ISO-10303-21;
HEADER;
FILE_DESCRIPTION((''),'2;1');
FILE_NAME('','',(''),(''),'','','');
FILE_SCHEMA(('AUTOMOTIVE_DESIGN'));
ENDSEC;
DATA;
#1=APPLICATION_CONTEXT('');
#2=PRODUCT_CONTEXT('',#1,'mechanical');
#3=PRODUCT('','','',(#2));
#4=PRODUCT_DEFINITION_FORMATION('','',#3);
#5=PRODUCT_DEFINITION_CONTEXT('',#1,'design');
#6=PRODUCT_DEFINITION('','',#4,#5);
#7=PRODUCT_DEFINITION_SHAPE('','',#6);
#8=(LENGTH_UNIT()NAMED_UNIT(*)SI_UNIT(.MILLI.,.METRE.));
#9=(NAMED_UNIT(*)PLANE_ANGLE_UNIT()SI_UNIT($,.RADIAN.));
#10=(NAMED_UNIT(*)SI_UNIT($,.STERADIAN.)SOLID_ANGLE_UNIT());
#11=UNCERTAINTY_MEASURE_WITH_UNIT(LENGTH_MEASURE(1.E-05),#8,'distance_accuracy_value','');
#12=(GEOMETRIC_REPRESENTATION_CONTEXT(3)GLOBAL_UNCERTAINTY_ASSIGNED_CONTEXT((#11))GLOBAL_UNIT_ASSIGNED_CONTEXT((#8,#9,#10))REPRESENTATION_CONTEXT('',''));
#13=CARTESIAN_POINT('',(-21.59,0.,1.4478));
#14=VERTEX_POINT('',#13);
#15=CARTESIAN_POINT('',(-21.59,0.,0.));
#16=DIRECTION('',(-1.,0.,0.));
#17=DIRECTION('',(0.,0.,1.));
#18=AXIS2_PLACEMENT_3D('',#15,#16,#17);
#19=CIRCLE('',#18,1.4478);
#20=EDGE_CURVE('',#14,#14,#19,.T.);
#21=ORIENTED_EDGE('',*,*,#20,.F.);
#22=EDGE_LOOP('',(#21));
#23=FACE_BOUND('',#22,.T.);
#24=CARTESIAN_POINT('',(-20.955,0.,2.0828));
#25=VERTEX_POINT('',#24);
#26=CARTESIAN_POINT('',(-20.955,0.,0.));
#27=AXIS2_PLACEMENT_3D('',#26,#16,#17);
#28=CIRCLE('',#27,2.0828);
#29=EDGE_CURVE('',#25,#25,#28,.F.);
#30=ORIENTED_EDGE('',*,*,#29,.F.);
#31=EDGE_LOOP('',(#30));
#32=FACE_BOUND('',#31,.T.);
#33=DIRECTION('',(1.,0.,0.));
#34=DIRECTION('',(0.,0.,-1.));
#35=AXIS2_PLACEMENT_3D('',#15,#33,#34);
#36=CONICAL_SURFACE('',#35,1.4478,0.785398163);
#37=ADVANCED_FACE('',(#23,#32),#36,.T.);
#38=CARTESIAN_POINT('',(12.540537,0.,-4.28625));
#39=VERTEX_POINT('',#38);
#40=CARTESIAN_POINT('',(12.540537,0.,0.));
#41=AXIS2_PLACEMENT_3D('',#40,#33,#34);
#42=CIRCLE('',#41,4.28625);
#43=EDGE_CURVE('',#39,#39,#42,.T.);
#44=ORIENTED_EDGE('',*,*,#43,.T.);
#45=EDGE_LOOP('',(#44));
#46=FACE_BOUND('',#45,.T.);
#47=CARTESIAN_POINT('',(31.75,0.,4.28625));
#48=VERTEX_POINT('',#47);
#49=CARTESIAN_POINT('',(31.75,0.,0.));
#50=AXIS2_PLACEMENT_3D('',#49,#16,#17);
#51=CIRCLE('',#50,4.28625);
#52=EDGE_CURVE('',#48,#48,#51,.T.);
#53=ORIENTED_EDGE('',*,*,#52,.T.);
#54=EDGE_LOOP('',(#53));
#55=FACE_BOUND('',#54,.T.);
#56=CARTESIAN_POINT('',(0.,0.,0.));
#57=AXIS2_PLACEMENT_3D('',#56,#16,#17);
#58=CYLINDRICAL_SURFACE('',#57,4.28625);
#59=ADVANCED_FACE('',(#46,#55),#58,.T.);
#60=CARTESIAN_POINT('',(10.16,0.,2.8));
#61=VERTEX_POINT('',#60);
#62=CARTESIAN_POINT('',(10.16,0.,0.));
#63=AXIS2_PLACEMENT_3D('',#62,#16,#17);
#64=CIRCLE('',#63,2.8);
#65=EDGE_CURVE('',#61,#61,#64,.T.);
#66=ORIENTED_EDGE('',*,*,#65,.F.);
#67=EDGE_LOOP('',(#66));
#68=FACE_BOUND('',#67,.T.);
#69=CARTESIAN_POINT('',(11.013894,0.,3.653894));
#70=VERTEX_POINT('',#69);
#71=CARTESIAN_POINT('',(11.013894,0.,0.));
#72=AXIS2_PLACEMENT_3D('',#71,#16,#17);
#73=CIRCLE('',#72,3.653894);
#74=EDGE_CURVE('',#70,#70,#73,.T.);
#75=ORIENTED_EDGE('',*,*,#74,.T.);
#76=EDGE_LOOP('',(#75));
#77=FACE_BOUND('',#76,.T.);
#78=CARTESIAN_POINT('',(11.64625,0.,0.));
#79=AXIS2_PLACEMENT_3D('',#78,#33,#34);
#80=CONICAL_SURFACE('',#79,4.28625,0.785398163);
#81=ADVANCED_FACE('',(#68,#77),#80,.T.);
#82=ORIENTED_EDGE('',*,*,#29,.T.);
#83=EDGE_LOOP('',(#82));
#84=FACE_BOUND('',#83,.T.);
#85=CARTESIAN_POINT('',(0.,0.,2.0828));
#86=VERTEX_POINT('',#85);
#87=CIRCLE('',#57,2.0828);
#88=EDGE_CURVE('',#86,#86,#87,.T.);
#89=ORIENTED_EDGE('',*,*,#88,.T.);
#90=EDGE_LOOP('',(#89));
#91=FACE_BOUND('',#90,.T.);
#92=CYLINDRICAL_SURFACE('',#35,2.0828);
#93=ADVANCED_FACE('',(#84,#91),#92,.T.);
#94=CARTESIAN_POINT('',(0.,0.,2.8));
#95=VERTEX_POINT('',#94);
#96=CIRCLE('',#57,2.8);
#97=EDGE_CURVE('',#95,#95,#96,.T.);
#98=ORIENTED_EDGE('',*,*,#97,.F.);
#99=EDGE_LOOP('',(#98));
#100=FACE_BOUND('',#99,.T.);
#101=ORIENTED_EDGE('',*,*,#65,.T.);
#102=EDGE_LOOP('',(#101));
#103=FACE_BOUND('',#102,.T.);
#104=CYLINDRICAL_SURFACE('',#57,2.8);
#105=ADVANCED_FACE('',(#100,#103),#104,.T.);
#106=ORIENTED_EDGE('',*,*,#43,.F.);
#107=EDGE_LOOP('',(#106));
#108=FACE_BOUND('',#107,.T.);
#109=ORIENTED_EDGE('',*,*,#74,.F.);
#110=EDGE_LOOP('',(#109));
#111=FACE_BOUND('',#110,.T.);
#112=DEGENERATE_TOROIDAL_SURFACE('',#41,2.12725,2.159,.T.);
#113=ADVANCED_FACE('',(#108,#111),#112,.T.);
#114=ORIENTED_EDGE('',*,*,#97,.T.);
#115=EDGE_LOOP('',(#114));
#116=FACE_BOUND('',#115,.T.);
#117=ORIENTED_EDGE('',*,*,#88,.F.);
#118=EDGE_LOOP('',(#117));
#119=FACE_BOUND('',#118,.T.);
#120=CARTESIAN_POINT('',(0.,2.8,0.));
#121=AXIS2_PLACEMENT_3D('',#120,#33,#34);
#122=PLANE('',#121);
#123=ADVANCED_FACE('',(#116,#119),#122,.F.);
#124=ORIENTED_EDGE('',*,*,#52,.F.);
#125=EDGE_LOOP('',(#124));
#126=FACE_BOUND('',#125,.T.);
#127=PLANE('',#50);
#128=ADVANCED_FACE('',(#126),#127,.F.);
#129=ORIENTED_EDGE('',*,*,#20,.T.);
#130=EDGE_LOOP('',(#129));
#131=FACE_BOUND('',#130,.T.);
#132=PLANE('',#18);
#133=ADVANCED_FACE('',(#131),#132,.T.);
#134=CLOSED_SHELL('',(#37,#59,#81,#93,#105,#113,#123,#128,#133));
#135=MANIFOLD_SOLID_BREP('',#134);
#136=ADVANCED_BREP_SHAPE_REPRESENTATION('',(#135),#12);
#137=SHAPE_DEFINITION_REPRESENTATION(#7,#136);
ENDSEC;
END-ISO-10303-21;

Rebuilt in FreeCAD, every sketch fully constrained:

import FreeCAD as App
import Part
import Sketcher
Q = App.Units.Quantity


def edges_at(feature, points):
    """Names of the edges that pass closest to the given points."""
    edges = feature.Shape.Edges
    near = lambda p: min(range(len(edges)), key=lambda i: edges[i].distToShape(Part.Vertex(*p))[0])
    return sorted({f"Edge{near(p) + 1}" for p in points})


def add_polygon(sketch, points):
    """Adds a closed chain of lines whose ends are joined by coincident constraints."""
    first, n = sketch.GeometryCount, len(points)
    for a, b in zip(points, points[1:] + points[:1]):
        sketch.addGeometry(Part.LineSegment(App.Vector(*a, 0), App.Vector(*b, 0)), False)
    for i in range(n):
        sketch.addConstraint(Sketcher.Constraint("Coincident", first + i, 2, first + (i + 1) % n, 1))

doc = App.newDocument("Part")
body = doc.addObject("PartDesign::Body", "Body")

# Sketch on XY plane
sketch1 = body.newObject("Sketcher::SketchObject", "Sketch")
sketch1.AttachmentSupport = (doc.getObject("XY_Plane"), [""])
sketch1.MapMode = "FlatFace"
add_polygon(sketch1, [(31.8, 0), (31.8, 4.3), (11.6, 4.3), (10.2, 2.8), (0, 2.8), (0, 0)])  # lines 0-5
sketch1.addConstraint([
    Sketcher.Constraint("Vertical", 0),
    Sketcher.Constraint("Horizontal", 1),
    Sketcher.Constraint("Horizontal", 3),
    Sketcher.Constraint("Vertical", 4),
    Sketcher.Constraint("Horizontal", 5),
    Sketcher.Constraint("Coincident", 4, 2, -1, 1),
    Sketcher.Constraint("DistanceX", 3, 2, 3, 1, Q("0.4 in")),
    Sketcher.Constraint("Angle", 2, Q("-135 deg")),
    Sketcher.Constraint("DistanceX", 5, 1, 5, 2, Q("1.25 in")),
    Sketcher.Constraint("DistanceY", 4, 2, 4, 1, Q("2.8 mm")),
    Sketcher.Constraint("DistanceX", 1, 2, 1, 1, Q("20.10375 mm")),
])
revolution = body.newObject("PartDesign::Revolution", "Revolution")
revolution.Profile = sketch1
revolution.ReferenceAxis = (sketch1, ["H_Axis"])
revolution.Angle = 360
doc.recompute()

fillet = body.newObject("PartDesign::Fillet", "Fillet")
fillet.Base = (revolution, edges_at(revolution, [(11.646, 0, -4.286)]))
fillet.Radius = Q("0.085 in")

# Sketch on YZ plane
sketch2 = body.newObject("Sketcher::SketchObject", "Sketch001")
sketch2.AttachmentSupport = (doc.getObject("YZ_Plane"), [""])
sketch2.MapMode = "FlatFace"
sketch2.addGeometry(Part.Circle(App.Vector(0, 0, 0), App.Vector(0, 0, 1), 2.1), False)
sketch2.addConstraint([
    Sketcher.Constraint("Coincident", 0, 3, -1, 1),
    Sketcher.Constraint("Diameter", 0, Q("0.164 in")),
])
pad1 = body.newObject("PartDesign::Pad", "Pad")
pad1.Profile = sketch2
pad1.Length = Q("0.85 in")
pad1.Reversed = True
doc.recompute()

chamfer = body.newObject("PartDesign::Chamfer", "Chamfer")
chamfer.Base = (pad1, edges_at(pad1, [(-21.59, 0, -2.083)]))
chamfer.Size = Q("0.025 in")

doc.recompute()
